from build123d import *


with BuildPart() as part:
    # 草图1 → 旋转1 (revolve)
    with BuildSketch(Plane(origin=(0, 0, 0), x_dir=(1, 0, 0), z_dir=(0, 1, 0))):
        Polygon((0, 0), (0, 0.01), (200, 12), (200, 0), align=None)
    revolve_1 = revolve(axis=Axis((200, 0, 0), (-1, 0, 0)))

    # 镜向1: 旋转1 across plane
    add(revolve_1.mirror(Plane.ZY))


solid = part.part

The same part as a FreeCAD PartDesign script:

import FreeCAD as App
import Part
import Sketcher
Q = App.Units.Quantity

doc = App.newDocument("Part")
params = doc.addObject("Spreadsheet::Sheet", "Params")
for row, (alias, value) in enumerate([
    ("sketch1_width", "200 mm"),
    ("sketch1_height", "12 mm"),
    ("sketch1_height2", "0.01 mm"),
    ("revolution_angle", "360 deg"),
], start=1):
    params.set(f"A{row}", alias)
    params.set(f"B{row}", "=" + value)
    params.setAlias(f"B{row}", alias)

body = doc.addObject("PartDesign::Body", "Body")

sketch1 = body.newObject("Sketcher::SketchObject", "Sketch")
sketch1.AttachmentSupport = (doc.getObject("XZ_Plane"), [""])
sketch1.MapMode = "FlatFace"
sketch1.addGeometry([
    Part.LineSegment(App.Vector(0, -0.01, 0), App.Vector(0, 0, 0)),
    Part.LineSegment(App.Vector(0, 0, 0), App.Vector(200, 0, 0)),
    Part.LineSegment(App.Vector(200, 0, 0), App.Vector(200, -12, 0)),
    Part.LineSegment(App.Vector(200, -12, 0), App.Vector(0, -0.01, 0)),
], False)
sketch1.addConstraint([
    Sketcher.Constraint("Coincident", 0, 2, 1, 1),
    Sketcher.Constraint("Coincident", 1, 2, 2, 1),
    Sketcher.Constraint("Coincident", 2, 2, 3, 1),
    Sketcher.Constraint("Coincident", 3, 2, 0, 1),
    Sketcher.Constraint("Vertical", 0),
    Sketcher.Constraint("Horizontal", 1),
    Sketcher.Constraint("Vertical", 2),
    Sketcher.Constraint("Coincident", 0, 2, -1, 1),
    Sketcher.Constraint("DistanceX", 1, 1, 1, 2, Q("200 mm")),
    Sketcher.Constraint("DistanceY", 2, 2, 2, 1, Q("12 mm")),
    Sketcher.Constraint("DistanceY", 0, 1, 0, 2, Q("0.01 mm")),
])
sketch1.setExpression("Constraints[8]", "Params.sketch1_width")
sketch1.setExpression("Constraints[9]", "Params.sketch1_height")
sketch1.setExpression("Constraints[10]", "Params.sketch1_height2")
revolution = body.newObject("PartDesign::Revolution", "Revolution")
revolution.Profile = sketch1
revolution.ReferenceAxis = (sketch1, ["H_Axis"])
revolution.setExpression("Angle", "Params.revolution_angle")
doc.recompute()

mirrored = body.newObject("PartDesign::Mirrored", "Mirrored")
mirrored.Originals = [revolution]
mirrored.MirrorPlane = (doc.getObject("YZ_Plane"), [""])
body.Tip = mirrored

doc.recompute()
